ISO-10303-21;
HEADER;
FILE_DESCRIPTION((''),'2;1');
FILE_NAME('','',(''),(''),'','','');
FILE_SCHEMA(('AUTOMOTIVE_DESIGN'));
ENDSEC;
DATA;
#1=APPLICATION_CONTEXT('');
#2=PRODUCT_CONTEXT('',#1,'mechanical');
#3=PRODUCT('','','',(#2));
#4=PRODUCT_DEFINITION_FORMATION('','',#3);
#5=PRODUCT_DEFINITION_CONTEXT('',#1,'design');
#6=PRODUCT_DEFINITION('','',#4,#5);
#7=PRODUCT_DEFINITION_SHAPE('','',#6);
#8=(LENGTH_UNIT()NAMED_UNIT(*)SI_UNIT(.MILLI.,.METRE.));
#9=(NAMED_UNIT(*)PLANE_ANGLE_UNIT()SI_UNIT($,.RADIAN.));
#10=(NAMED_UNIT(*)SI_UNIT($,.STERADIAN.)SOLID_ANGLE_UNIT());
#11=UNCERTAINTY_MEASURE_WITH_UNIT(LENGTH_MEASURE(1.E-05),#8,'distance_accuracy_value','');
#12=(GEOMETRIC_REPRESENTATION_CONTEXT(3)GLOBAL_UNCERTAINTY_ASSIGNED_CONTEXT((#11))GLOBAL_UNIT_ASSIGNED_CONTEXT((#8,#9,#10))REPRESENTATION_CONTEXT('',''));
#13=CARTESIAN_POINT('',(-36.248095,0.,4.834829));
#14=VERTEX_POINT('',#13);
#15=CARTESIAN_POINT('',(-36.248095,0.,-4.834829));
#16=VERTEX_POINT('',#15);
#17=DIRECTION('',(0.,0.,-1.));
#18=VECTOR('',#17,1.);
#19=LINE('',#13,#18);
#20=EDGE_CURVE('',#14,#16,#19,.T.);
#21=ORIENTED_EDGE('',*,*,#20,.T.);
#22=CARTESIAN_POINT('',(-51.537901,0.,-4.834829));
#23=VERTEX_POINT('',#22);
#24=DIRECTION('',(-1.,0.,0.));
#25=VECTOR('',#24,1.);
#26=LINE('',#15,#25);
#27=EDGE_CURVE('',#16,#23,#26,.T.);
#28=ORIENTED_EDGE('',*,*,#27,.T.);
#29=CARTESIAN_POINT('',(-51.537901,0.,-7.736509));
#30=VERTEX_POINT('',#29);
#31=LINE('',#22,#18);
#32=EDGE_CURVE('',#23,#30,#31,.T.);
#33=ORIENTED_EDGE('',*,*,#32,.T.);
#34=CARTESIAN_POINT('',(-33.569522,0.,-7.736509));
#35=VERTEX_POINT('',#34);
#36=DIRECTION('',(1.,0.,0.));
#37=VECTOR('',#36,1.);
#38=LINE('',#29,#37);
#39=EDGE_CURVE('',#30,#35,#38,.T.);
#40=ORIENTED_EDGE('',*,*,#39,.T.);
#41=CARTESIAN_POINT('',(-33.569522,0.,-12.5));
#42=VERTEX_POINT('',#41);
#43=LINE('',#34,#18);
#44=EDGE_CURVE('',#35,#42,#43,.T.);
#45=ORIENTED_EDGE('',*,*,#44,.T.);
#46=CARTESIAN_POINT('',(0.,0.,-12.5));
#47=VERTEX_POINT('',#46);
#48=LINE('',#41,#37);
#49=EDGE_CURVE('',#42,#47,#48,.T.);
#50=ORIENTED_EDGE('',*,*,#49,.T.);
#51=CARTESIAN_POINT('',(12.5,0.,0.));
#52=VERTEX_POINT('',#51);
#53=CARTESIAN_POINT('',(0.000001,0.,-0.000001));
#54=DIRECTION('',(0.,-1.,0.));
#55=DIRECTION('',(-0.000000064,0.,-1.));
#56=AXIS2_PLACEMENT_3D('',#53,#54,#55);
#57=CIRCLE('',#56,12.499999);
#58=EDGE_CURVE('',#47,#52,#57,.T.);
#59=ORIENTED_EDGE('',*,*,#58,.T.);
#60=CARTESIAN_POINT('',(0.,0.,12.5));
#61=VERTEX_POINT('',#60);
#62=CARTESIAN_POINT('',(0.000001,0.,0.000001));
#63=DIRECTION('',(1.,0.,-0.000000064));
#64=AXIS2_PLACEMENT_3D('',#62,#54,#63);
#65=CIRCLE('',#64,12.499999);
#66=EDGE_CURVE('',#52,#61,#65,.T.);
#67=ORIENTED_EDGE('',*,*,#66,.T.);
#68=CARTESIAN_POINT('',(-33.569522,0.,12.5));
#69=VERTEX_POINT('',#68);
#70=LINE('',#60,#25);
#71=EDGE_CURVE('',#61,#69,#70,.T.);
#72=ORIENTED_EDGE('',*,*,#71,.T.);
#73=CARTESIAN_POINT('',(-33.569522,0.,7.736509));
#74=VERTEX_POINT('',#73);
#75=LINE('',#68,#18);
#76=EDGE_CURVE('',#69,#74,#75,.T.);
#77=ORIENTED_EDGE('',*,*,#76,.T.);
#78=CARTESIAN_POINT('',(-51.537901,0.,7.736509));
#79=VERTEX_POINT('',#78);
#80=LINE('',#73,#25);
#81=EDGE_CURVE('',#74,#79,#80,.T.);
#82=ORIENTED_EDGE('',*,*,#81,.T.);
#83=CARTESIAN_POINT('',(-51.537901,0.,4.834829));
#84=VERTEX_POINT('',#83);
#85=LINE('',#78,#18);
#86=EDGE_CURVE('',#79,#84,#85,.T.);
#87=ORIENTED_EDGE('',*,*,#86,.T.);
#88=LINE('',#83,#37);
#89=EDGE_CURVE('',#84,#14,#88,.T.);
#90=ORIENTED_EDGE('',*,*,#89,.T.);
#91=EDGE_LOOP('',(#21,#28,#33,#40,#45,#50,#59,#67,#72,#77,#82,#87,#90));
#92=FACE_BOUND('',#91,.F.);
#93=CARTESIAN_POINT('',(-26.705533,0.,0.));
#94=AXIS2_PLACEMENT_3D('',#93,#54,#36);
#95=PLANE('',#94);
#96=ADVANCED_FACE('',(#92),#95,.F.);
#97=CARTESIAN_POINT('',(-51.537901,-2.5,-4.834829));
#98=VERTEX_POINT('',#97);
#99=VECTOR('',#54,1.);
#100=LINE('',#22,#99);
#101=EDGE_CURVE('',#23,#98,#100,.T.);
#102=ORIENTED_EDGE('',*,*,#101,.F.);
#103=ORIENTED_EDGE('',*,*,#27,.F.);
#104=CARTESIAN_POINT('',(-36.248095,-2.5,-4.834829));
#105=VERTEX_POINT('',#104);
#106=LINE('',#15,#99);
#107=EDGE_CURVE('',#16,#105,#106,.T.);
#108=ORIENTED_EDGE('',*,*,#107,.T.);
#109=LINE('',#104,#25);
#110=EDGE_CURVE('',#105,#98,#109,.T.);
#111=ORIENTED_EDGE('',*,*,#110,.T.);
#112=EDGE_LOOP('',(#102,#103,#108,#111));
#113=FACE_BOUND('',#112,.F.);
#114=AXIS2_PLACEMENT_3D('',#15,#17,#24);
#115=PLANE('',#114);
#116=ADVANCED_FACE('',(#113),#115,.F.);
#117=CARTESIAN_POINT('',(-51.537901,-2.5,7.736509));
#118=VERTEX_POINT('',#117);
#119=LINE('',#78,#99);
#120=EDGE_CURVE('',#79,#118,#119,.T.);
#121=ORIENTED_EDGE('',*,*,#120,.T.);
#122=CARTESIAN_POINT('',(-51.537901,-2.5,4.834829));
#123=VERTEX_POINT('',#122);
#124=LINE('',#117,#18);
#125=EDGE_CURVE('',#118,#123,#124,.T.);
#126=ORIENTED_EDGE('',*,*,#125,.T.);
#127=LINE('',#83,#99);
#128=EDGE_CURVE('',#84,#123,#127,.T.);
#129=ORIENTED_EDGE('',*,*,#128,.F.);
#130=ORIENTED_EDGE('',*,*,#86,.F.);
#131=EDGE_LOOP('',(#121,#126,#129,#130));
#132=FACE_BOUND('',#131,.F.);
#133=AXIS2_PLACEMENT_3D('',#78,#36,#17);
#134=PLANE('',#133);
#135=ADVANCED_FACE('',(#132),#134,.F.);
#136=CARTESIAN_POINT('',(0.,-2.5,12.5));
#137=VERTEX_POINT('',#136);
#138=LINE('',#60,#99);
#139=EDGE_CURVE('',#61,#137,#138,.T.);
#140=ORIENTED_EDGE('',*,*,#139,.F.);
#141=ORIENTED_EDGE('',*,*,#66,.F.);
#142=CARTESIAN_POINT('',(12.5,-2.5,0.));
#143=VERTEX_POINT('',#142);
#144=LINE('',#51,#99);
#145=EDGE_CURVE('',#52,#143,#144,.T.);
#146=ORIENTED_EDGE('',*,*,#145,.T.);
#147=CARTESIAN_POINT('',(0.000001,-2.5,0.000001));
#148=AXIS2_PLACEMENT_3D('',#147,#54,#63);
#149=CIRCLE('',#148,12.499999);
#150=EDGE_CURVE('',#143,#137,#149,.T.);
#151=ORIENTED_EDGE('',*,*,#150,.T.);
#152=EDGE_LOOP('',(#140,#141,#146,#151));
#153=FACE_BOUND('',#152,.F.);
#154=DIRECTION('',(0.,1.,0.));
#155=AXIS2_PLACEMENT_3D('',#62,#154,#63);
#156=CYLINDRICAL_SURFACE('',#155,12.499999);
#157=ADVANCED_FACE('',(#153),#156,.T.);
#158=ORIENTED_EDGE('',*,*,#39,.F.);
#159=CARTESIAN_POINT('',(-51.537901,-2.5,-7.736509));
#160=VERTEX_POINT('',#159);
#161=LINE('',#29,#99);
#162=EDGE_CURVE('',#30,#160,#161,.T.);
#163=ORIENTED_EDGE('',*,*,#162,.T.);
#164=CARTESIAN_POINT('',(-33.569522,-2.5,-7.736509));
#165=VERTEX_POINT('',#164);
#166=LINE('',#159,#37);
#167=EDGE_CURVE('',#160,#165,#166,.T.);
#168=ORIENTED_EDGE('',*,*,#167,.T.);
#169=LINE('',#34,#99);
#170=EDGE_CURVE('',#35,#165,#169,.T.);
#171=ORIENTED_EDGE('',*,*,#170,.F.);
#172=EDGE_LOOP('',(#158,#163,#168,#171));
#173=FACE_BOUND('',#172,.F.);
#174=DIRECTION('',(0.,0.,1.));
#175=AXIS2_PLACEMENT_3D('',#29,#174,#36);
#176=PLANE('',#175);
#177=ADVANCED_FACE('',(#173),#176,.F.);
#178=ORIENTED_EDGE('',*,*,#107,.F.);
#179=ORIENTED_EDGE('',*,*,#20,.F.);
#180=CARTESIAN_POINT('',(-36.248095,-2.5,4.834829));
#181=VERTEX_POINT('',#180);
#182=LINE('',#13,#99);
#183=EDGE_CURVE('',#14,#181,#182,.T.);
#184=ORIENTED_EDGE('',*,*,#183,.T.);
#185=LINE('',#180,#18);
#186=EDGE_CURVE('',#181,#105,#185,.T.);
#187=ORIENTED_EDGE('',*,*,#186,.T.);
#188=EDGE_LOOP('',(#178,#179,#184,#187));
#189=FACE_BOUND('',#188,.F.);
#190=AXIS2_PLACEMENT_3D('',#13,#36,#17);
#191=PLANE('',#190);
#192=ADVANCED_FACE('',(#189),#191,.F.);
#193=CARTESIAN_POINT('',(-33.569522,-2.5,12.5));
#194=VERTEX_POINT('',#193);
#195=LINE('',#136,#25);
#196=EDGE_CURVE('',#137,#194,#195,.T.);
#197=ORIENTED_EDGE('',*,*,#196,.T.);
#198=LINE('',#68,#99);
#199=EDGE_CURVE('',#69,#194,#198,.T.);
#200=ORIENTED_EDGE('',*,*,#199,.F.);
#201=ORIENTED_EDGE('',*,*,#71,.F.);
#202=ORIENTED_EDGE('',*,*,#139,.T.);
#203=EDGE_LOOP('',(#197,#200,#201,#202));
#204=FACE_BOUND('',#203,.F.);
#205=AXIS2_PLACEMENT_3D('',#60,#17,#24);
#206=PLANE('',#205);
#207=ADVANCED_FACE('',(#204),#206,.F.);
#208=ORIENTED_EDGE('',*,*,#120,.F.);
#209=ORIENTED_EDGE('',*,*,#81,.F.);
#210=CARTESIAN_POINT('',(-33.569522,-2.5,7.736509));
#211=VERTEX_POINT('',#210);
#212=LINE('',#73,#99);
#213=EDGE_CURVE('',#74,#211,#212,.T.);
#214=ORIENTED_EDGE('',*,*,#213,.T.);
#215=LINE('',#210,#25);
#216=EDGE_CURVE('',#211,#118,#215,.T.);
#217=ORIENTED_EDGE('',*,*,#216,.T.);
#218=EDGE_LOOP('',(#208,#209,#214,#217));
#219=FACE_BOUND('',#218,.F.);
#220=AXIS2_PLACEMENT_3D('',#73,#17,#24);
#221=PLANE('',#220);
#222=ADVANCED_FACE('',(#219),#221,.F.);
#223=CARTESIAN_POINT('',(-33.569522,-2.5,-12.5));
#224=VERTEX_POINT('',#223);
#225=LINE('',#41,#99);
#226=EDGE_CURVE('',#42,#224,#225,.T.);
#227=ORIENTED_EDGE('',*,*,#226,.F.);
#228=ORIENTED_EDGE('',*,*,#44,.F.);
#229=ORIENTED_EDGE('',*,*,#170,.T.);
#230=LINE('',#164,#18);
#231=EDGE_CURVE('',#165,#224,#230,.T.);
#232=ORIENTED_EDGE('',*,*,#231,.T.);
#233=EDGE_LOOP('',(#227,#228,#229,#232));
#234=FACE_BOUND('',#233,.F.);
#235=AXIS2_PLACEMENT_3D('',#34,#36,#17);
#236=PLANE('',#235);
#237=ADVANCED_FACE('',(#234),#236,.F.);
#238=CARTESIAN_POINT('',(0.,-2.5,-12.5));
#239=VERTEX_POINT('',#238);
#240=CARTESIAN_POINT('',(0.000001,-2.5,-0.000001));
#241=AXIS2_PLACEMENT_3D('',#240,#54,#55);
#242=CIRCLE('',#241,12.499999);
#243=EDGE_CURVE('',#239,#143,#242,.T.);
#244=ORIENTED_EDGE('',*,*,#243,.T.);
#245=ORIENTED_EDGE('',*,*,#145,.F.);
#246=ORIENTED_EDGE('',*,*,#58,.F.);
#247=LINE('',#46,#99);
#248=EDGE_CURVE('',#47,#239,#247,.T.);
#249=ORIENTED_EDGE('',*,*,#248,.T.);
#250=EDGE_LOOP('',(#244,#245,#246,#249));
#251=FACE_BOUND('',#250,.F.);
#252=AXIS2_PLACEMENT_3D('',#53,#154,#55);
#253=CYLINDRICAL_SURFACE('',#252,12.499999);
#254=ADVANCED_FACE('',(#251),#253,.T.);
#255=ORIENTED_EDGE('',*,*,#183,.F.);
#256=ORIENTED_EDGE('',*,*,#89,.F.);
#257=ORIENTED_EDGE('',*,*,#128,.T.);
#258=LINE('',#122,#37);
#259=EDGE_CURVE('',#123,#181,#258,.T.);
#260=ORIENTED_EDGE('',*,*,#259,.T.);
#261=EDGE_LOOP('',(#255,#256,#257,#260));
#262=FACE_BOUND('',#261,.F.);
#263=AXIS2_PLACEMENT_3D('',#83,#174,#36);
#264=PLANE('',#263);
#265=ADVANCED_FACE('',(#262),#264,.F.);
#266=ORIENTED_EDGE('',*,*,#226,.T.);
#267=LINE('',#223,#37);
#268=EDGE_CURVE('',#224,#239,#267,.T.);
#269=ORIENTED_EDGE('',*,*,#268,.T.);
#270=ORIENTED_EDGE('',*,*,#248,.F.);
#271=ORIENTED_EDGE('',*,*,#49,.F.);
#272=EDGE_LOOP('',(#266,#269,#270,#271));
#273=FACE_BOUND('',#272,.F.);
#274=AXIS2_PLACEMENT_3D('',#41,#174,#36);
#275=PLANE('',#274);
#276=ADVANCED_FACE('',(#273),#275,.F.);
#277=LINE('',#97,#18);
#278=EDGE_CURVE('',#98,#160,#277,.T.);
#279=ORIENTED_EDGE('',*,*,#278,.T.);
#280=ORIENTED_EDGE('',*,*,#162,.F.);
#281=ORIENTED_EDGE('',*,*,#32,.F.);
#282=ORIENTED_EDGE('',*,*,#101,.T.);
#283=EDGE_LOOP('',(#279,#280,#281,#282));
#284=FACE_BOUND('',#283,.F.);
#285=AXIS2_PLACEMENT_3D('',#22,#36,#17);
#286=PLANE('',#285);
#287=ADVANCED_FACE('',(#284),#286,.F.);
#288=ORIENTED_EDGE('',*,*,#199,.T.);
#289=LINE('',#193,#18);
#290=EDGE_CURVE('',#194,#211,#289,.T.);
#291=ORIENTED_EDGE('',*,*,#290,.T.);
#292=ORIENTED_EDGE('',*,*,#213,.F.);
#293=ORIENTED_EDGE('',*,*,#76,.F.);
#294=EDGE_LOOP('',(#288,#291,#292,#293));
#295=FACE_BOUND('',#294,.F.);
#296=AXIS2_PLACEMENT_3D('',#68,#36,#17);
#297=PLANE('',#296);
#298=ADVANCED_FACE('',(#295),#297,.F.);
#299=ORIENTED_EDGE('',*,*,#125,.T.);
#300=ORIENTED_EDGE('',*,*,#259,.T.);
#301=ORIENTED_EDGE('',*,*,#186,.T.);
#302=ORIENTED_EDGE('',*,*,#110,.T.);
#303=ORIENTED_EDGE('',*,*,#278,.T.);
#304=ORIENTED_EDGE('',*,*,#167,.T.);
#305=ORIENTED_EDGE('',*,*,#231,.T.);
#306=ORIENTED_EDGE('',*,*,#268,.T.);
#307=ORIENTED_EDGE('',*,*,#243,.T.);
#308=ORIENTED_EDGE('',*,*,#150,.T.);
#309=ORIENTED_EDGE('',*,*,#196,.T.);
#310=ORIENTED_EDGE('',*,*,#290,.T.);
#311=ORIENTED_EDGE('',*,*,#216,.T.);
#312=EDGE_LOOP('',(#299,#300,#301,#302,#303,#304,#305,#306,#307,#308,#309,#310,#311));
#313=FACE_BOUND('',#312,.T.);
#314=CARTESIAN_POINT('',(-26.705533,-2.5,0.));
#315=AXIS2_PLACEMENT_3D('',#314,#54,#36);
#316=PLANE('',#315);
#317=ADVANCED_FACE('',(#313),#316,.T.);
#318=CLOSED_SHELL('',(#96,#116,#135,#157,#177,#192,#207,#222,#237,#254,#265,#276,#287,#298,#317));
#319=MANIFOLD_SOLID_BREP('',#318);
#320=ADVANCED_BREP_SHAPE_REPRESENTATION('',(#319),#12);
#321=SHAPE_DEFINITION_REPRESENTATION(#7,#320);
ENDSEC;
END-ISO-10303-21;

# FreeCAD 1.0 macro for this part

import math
import FreeCAD as App
import Part
import Sketcher
from FreeCAD import Vector
Q = App.Units.Quantity

doc = App.newDocument("Part")
body = doc.addObject("PartDesign::Body", "Body")

sketch1 = body.newObject("Sketcher::SketchObject", "Sketch")
sketch1.AttachmentSupport = (doc.getObject("XZ_Plane"), [""])
sketch1.MapMode = "FlatFace"
sketch1.addGeometry(Part.LineSegment(Vector(0, 12.5, 0), Vector(-33.6, 12.5, 0)), False)
sketch1.addGeometry(Part.LineSegment(Vector(-33.6, 12.5, 0), Vector(-33.6, 7.7, 0)), False)
sketch1.addGeometry(Part.LineSegment(Vector(-33.6, 7.7, 0), Vector(-51.5, 7.7, 0)), False)
sketch1.addGeometry(Part.LineSegment(Vector(-51.5, 7.7, 0), Vector(-51.5, 4.8, 0)), False)
sketch1.addGeometry(Part.LineSegment(Vector(-51.5, 4.8, 0), Vector(-36.2, 4.8, 0)), False)
sketch1.addGeometry(Part.LineSegment(Vector(-36.2, 4.8, 0), Vector(-36.2, -4.8, 0)), False)
sketch1.addGeometry(Part.LineSegment(Vector(-36.2, -4.8, 0), Vector(-51.5, -4.8, 0)), False)
sketch1.addGeometry(Part.LineSegment(Vector(-51.5, -4.8, 0), Vector(-51.5, -7.7, 0)), False)
sketch1.addGeometry(Part.LineSegment(Vector(-51.5, -7.7, 0), Vector(-33.6, -7.7, 0)), False)
sketch1.addGeometry(Part.LineSegment(Vector(-33.6, -7.7, 0), Vector(-33.6, -12.5, 0)), False)
sketch1.addGeometry(Part.LineSegment(Vector(-33.6, -12.5, 0), Vector(0, -12.5, 0)), False)
sketch1.addGeometry(Part.ArcOfCircle(Part.Circle(Vector(0, 0, 0), Vector(0, 0, 1), 12.5), math.radians(-90), math.radians(0)), False)
sketch1.addGeometry(Part.ArcOfCircle(Part.Circle(Vector(0, 0, 0), Vector(0, 0, 1), 12.5), math.radians(0), math.radians(90)), False)
sketch1.addConstraint(Sketcher.Constraint("Coincident", 0, 2, 1, 1))
sketch1.addConstraint(Sketcher.Constraint("Coincident", 1, 2, 2, 1))
sketch1.addConstraint(Sketcher.Constraint("Coincident", 2, 2, 3, 1))
sketch1.addConstraint(Sketcher.Constraint("Coincident", 3, 2, 4, 1))
sketch1.addConstraint(Sketcher.Constraint("Coincident", 4, 2, 5, 1))
sketch1.addConstraint(Sketcher.Constraint("Coincident", 5, 2, 6, 1))
sketch1.addConstraint(Sketcher.Constraint("Coincident", 6, 2, 7, 1))
sketch1.addConstraint(Sketcher.Constraint("Coincident", 7, 2, 8, 1))
sketch1.addConstraint(Sketcher.Constraint("Coincident", 8, 2, 9, 1))
sketch1.addConstraint(Sketcher.Constraint("Coincident", 9, 2, 10, 1))
sketch1.addConstraint(Sketcher.Constraint("Tangent", 10, 2, 11, 1))
sketch1.addConstraint(Sketcher.Constraint("Tangent", 11, 2, 12, 1))
sketch1.addConstraint(Sketcher.Constraint("Tangent", 12, 2, 0, 1))
sketch1.addConstraint(Sketcher.Constraint("Horizontal", 0))
sketch1.addConstraint(Sketcher.Constraint("Vertical", 1))
sketch1.addConstraint(Sketcher.Constraint("Horizontal", 2))
sketch1.addConstraint(Sketcher.Constraint("Vertical", 3))
sketch1.addConstraint(Sketcher.Constraint("Horizontal", 4))
sketch1.addConstraint(Sketcher.Constraint("Vertical", 5))
sketch1.addConstraint(Sketcher.Constraint("Horizontal", 6))
sketch1.addConstraint(Sketcher.Constraint("Vertical", 7))
sketch1.addConstraint(Sketcher.Constraint("Horizontal", 8))
sketch1.addConstraint(Sketcher.Constraint("Vertical", 9))
sketch1.addConstraint(Sketcher.Constraint("Horizontal", 10))
sketch1.addConstraint(Sketcher.Constraint("Coincident", 11, 3, -1, 1))
sketch1.addConstraint(Sketcher.Constraint("Equal", 11, 12))
sketch1.addConstraint(Sketcher.Constraint("Symmetric", 3, 2, 6, 2, -1))
sketch1.addConstraint(Sketcher.Constraint("Symmetric", 1, 2, 8, 2, -1))
sketch1.addConstraint(Sketcher.Constraint("PointOnObject", 11, 2, -1))
sketch1.addConstraint(Sketcher.Constraint("Radius", 11, Q("12.499999 mm")))
sketch1.addConstraint(Sketcher.Constraint("DistanceX", 2, 2, 2, 1, Q("17.968379 mm")))
sketch1.addConstraint(Sketcher.Constraint("DistanceY", 1, 2, 1, 1, Q("4.763491 mm")))
sketch1.addConstraint(Sketcher.Constraint("DistanceY", 3, 2, 3, 1, Q("2.90168 mm")))
sketch1.addConstraint(Sketcher.Constraint("DistanceX", 2, 2, -1, 1, Q("51.537901 mm")))
sketch1.addConstraint(Sketcher.Constraint("DistanceX", 4, 1, 4, 2, Q("15.289806 mm")))
pad1 = body.newObject("PartDesign::Pad", "Pad")
pad1.Profile = sketch1
pad1.Length = 2.5

doc.recompute()
